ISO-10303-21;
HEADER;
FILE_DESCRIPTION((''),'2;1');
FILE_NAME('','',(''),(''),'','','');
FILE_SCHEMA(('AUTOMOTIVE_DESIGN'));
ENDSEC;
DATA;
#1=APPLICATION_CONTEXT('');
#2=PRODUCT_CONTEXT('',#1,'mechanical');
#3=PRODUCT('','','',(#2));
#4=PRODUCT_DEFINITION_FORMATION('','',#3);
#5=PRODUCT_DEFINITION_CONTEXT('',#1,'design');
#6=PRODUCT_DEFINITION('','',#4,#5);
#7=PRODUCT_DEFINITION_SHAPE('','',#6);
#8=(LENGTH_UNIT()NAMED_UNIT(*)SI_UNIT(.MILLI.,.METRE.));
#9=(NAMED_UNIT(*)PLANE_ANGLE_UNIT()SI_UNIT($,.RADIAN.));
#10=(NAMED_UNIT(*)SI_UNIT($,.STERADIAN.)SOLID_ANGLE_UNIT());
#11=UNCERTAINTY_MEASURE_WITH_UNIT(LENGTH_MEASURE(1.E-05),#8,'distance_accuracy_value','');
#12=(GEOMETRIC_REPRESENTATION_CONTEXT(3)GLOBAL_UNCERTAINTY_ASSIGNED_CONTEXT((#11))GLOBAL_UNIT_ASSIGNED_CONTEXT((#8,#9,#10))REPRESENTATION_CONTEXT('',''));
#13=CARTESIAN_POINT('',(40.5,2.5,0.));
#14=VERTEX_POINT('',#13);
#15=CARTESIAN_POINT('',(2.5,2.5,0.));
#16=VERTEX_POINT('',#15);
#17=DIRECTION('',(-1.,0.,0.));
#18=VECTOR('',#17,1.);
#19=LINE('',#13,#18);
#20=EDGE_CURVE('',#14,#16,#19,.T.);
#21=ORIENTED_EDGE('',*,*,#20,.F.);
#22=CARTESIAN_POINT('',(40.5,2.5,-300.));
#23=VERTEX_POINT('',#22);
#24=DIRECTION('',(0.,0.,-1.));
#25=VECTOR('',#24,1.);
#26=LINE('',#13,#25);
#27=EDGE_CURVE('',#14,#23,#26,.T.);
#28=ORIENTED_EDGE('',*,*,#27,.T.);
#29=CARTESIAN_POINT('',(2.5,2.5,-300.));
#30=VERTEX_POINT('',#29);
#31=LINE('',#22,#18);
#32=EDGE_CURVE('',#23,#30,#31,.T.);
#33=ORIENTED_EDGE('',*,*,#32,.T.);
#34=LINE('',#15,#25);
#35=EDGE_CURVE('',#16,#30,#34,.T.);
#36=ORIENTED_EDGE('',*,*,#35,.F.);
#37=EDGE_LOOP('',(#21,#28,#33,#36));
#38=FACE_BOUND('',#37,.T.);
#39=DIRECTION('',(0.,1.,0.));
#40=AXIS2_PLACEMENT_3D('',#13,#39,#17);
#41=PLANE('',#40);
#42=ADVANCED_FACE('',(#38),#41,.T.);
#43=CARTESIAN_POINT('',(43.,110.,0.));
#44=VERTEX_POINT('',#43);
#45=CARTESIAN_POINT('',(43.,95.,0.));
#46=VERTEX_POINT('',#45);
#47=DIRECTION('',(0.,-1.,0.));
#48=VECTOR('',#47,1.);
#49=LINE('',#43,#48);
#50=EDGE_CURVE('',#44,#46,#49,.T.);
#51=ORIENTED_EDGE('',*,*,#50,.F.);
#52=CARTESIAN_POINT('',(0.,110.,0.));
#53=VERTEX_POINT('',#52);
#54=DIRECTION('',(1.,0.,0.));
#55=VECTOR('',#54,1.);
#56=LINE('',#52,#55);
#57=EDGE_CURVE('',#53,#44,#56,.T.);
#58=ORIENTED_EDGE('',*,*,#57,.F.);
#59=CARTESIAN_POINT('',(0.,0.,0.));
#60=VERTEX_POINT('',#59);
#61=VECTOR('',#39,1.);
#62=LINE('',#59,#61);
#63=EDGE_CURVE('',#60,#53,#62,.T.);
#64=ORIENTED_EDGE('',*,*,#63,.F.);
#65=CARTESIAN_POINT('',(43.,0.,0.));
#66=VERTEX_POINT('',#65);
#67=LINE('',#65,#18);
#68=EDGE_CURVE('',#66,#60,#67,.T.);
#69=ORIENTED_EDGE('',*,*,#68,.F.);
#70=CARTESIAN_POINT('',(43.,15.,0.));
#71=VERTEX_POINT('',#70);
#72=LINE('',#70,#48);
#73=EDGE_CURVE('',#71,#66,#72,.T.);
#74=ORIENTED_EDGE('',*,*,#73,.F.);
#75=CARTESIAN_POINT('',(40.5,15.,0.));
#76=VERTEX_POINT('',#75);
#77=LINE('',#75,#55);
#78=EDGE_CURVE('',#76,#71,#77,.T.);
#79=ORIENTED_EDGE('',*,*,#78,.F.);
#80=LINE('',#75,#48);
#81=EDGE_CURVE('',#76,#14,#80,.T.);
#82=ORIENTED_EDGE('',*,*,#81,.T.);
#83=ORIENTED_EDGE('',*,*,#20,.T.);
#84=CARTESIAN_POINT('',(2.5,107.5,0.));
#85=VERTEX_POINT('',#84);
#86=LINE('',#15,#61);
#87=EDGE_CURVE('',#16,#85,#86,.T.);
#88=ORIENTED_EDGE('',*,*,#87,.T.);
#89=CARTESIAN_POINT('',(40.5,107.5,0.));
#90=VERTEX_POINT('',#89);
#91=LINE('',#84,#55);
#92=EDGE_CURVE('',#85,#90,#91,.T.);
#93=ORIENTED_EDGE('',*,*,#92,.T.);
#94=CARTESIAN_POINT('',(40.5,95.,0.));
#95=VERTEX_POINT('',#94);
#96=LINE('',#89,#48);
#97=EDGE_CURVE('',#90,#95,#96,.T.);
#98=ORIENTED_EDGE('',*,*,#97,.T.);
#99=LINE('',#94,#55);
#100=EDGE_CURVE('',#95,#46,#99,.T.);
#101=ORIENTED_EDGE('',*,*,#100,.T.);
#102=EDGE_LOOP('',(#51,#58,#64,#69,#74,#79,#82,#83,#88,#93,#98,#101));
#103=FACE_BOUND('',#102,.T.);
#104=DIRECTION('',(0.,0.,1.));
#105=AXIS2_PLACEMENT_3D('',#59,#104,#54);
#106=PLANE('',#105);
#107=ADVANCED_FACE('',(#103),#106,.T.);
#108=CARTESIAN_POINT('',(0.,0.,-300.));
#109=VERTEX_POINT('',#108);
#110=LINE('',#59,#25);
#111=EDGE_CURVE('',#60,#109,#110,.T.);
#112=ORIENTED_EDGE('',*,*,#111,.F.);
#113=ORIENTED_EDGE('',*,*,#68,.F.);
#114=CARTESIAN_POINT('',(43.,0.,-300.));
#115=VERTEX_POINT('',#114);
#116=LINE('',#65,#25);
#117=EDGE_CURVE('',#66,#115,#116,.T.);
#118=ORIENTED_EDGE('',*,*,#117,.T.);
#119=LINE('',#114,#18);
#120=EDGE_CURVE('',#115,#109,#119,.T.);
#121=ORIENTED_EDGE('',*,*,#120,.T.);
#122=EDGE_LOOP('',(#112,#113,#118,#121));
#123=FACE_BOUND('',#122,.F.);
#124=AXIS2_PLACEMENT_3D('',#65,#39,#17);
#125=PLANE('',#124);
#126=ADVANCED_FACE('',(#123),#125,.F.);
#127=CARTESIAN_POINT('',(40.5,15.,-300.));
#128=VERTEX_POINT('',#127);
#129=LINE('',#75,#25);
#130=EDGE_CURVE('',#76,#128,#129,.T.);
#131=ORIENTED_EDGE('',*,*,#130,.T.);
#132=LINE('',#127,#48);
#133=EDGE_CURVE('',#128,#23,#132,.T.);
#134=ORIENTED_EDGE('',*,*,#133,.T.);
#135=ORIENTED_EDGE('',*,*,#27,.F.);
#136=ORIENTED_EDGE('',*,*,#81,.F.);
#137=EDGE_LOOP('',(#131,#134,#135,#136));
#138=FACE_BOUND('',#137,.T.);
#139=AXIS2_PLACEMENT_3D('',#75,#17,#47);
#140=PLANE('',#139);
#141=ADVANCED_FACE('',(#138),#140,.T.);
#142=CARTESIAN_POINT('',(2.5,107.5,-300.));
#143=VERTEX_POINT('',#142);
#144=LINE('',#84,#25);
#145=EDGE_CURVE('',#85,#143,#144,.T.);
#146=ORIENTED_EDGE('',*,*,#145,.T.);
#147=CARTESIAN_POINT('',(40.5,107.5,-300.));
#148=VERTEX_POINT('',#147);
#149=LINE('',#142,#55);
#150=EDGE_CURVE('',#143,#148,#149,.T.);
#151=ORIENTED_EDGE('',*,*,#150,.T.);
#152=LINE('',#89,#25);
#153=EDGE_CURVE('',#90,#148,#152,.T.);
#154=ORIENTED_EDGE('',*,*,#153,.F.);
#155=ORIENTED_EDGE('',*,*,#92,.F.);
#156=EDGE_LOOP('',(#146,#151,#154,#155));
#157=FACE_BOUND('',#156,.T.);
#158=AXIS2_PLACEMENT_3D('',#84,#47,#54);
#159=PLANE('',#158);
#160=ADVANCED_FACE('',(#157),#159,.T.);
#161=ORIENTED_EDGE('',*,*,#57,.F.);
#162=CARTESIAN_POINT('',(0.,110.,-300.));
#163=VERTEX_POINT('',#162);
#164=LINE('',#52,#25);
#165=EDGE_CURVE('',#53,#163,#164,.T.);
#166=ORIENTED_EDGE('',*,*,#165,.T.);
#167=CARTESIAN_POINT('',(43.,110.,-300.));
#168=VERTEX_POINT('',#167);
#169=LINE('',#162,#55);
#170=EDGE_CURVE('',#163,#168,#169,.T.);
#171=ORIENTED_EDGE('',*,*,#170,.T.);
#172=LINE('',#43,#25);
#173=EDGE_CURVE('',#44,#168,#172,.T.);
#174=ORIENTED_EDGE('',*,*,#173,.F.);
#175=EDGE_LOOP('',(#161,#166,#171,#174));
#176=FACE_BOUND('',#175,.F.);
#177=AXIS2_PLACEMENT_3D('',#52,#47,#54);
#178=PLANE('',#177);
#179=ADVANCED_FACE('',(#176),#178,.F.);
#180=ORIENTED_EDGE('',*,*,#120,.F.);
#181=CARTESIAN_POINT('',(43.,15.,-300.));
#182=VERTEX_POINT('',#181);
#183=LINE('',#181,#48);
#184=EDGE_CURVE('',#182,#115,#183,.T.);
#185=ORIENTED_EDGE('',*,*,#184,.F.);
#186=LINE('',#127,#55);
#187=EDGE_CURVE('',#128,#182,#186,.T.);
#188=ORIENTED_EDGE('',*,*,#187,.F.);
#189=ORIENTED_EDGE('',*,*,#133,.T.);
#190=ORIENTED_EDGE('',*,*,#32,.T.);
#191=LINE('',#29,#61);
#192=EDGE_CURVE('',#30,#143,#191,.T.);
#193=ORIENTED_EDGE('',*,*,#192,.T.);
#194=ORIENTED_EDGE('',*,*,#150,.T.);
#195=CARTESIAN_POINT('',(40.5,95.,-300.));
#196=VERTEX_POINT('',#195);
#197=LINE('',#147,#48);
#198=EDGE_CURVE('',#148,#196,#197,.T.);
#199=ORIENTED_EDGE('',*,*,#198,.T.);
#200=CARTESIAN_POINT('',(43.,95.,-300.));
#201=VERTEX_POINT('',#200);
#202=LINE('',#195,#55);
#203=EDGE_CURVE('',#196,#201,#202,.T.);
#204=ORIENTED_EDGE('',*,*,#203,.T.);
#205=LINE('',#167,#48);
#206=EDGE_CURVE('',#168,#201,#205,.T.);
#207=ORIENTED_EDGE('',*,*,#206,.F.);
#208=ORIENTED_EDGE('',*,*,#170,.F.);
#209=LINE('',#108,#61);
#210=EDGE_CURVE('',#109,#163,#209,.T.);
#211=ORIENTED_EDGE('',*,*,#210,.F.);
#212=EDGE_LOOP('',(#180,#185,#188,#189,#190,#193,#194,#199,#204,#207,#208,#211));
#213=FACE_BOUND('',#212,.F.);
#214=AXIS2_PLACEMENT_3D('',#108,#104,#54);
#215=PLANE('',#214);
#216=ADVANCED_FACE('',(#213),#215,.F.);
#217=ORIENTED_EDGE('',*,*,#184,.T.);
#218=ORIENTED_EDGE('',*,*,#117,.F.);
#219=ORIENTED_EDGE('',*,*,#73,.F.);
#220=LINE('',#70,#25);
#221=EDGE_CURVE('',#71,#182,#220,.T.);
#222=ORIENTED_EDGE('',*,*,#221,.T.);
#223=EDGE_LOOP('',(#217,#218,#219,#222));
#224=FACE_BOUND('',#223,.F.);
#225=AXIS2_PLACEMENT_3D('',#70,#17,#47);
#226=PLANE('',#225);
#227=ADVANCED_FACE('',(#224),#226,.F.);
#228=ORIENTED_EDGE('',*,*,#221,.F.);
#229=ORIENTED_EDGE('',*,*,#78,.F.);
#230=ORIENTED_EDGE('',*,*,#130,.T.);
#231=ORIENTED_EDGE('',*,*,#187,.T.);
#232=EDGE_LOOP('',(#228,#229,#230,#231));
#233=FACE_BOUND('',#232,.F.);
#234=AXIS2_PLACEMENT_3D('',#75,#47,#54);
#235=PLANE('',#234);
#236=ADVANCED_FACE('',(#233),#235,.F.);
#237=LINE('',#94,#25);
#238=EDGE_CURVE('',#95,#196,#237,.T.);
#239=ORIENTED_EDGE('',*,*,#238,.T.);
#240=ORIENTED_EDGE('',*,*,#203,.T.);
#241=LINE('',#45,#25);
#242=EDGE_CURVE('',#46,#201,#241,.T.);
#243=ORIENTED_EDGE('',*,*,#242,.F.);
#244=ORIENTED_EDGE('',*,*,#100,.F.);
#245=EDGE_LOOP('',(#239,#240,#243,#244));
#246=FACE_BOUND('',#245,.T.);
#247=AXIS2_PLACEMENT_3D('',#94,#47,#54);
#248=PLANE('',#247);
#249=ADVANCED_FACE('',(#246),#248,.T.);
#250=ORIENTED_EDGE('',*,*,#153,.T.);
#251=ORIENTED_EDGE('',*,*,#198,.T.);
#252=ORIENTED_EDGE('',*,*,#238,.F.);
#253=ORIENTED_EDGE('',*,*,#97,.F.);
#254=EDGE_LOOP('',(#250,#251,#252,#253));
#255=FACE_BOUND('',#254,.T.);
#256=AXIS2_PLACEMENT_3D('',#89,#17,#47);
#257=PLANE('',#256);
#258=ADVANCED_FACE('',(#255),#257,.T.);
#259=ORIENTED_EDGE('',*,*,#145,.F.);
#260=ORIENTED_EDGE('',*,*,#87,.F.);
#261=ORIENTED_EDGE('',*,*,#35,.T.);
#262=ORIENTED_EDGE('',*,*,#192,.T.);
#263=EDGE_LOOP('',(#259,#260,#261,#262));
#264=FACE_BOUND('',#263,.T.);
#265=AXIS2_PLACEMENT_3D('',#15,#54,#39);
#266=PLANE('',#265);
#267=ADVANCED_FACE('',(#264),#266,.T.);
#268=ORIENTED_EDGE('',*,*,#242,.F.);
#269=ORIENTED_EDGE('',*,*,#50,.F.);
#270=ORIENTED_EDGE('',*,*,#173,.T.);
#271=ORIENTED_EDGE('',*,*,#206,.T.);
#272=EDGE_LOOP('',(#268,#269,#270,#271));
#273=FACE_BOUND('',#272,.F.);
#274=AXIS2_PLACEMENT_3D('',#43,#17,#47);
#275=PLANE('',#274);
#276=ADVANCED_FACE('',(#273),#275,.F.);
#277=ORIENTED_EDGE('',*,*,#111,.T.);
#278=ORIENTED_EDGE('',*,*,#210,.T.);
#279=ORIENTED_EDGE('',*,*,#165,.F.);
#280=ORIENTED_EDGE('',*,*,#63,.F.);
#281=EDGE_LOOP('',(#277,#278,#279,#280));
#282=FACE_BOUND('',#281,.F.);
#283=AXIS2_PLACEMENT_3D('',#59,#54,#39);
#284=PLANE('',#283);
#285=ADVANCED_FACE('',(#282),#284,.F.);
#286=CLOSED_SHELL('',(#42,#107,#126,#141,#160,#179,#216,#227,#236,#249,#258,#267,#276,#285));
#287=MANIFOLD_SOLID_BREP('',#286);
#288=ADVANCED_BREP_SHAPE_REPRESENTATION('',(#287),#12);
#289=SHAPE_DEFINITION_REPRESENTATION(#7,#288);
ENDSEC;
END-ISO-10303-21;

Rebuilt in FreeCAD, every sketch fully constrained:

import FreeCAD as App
import Part
import Sketcher
from FreeCAD import Vector
Q = App.Units.Quantity


def add_polygon(sketch, points):
    """Adds a closed chain of lines whose ends are joined by coincident constraints."""
    first, n = sketch.GeometryCount, len(points)
    for a, b in zip(points, points[1:] + points[:1]):
        sketch.addGeometry(Part.LineSegment(App.Vector(*a, 0), App.Vector(*b, 0)), False)
    for i in range(n):
        sketch.addConstraint(Sketcher.Constraint("Coincident", first + i, 2, first + (i + 1) % n, 1))

doc = App.newDocument("Part")
body = doc.addObject("PartDesign::Body", "Body")

# Sketch on XY plane
sketch1 = doc.addObject("Sketcher::SketchObject", "Sketch")
body.addObject(sketch1)
sketch1.AttachmentSupport = (doc.XY_Plane, [""])
sketch1.MapMode = "FlatFace"
add_polygon(sketch1, [(43, 0), (43, 15), (40.5, 15), (40.5, 2.5), (2.5, 2.5), (2.5, 107.5), (40.5, 107.5), (40.5, 95), (43, 95), (43, 110), (0, 110), (0, 0)])  # lines 0-11
sketch1.addConstraint(Sketcher.Constraint("Vertical", 0))
sketch1.addConstraint(Sketcher.Constraint("Horizontal", 1))
sketch1.addConstraint(Sketcher.Constraint("Vertical", 2))
sketch1.addConstraint(Sketcher.Constraint("Horizontal", 3))
sketch1.addConstraint(Sketcher.Constraint("Vertical", 4))
sketch1.addConstraint(Sketcher.Constraint("Horizontal", 5))
sketch1.addConstraint(Sketcher.Constraint("Vertical", 6))
sketch1.addConstraint(Sketcher.Constraint("Horizontal", 7))
sketch1.addConstraint(Sketcher.Constraint("Vertical", 8))
sketch1.addConstraint(Sketcher.Constraint("Horizontal", 9))
sketch1.addConstraint(Sketcher.Constraint("Vertical", 10))
sketch1.addConstraint(Sketcher.Constraint("Horizontal", 11))
sketch1.addConstraint(Sketcher.Constraint("Coincident", 10, 2, -1, 1))
sketch1.addConstraint(Sketcher.Constraint("Vertical", 2, 2, 5, 2))
sketch1.addConstraint(Sketcher.Constraint("Vertical", 0, 2, 7, 2))
sketch1.addConstraint(Sketcher.Constraint("Equal", 2, 6))
sketch1.addConstraint(Sketcher.Constraint("Equal", 0, 8))
sketch1.addConstraint(Sketcher.Constraint("DistanceX", 9, 2, 9, 1, Q("43 mm")))
sketch1.addConstraint(Sketcher.Constraint("DistanceY", 0, 1, 0, 2, Q("15 mm")))
sketch1.addConstraint(Sketcher.Constraint("DistanceY", 10, 2, 10, 1, Q("110 mm")))
sketch1.addConstraint(Sketcher.Constraint("DistanceX", 1, 2, 1, 1, Q("2.5 mm")))
sketch1.addConstraint(Sketcher.Constraint("DistanceY", -1, 1, 2, 2, Q("2.5 mm")))
sketch1.addConstraint(Sketcher.Constraint("DistanceX", -1, 1, 3, 2, Q("2.5 mm")))
pad1 = doc.addObject("PartDesign::Pad", "Pad")
body.addObject(pad1)
pad1.Profile = sketch1
pad1.Length = 300
pad1.Reversed = True

doc.recompute()
